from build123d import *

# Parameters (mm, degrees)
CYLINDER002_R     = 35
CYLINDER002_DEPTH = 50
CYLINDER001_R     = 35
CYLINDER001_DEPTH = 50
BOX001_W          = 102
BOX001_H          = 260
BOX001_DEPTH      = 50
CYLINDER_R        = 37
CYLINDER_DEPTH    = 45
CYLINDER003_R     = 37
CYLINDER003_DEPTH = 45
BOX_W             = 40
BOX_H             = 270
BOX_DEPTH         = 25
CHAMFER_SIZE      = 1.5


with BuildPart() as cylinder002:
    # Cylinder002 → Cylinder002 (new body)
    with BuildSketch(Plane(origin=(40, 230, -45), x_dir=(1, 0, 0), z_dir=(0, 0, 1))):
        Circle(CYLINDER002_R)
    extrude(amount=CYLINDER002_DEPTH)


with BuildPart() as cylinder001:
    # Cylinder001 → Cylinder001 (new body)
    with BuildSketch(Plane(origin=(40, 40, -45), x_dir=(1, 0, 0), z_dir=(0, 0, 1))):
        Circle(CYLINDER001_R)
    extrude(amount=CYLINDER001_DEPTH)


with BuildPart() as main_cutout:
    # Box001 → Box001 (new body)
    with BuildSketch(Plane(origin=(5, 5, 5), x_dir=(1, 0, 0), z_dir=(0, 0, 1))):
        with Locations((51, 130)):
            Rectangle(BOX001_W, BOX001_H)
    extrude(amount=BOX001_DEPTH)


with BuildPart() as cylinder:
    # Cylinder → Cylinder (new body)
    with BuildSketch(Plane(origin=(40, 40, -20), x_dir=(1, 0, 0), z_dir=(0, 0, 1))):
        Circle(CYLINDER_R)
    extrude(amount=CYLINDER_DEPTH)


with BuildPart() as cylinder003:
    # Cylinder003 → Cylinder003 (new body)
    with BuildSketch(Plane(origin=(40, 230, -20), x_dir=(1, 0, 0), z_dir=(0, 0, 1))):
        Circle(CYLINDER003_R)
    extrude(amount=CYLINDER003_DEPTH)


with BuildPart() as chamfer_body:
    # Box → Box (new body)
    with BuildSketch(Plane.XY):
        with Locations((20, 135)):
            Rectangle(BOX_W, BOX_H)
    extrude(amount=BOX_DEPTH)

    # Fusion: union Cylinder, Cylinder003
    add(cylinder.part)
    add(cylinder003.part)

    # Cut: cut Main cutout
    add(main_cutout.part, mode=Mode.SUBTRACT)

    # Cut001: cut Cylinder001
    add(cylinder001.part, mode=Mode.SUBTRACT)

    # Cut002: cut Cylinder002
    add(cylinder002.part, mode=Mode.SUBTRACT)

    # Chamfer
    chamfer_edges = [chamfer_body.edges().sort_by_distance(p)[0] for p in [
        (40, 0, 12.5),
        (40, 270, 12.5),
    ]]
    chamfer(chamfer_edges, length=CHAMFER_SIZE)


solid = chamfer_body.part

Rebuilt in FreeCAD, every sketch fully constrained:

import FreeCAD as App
import Part
import Sketcher
from FreeCAD import Vector
Q = App.Units.Quantity


def edges_at(feature, points):
    """Names of the edges that pass closest to the given points."""
    edges = feature.Shape.Edges
    near = lambda p: min(range(len(edges)), key=lambda i: edges[i].distToShape(Part.Vertex(*p))[0])
    return sorted({f"Edge{near(p) + 1}" for p in points})


def add_polygon(sketch, points):
    """Adds a closed chain of lines whose ends are joined by coincident constraints."""
    first, n = sketch.GeometryCount, len(points)
    for a, b in zip(points, points[1:] + points[:1]):
        sketch.addGeometry(Part.LineSegment(App.Vector(*a, 0), App.Vector(*b, 0)), False)
    for i in range(n):
        sketch.addConstraint(Sketcher.Constraint("Coincident", first + i, 2, first + (i + 1) % n, 1))

doc = App.newDocument("Part")
body = doc.addObject("PartDesign::Body", "Body")

sketch1 = body.newObject("Sketcher::SketchObject", "Sketch")
sketch1.AttachmentSupport = (doc.getObject("XY_Plane"), [""])
sketch1.MapMode = "FlatFace"
sketch1.AttachmentOffset = App.Placement(Vector(0, 0, -45), App.Rotation())
sketch1.addGeometry(Part.Circle(Vector(40, 230, 0), Vector(0, 0, 1), 35), False)
sketch1.addConstraint(Sketcher.Constraint("Diameter", 0, Q("70 mm")))
sketch1.addConstraint(Sketcher.Constraint("DistanceX", -1, 1, 0, 3, Q("40 mm")))
sketch1.addConstraint(Sketcher.Constraint("DistanceY", -1, 1, 0, 3, Q("230 mm")))
pad1 = body.newObject("PartDesign::Pad", "Pad")
pad1.Profile = sketch1
pad1.Length = 50
body2 = doc.addObject("PartDesign::Body", "Body001")

sketch2 = body2.newObject("Sketcher::SketchObject", "Sketch001")
sketch2.AttachmentSupport = (doc.getObject("XY_Plane001"), [""])
sketch2.MapMode = "FlatFace"
sketch2.AttachmentOffset = App.Placement(Vector(0, 0, -45), App.Rotation())
sketch2.addGeometry(Part.Circle(Vector(40, 40, 0), Vector(0, 0, 1), 35), False)
sketch2.addConstraint(Sketcher.Constraint("Diameter", 0, Q("70 mm")))
sketch2.addConstraint(Sketcher.Constraint("DistanceX", -1, 1, 0, 3, Q("40 mm")))
sketch2.addConstraint(Sketcher.Constraint("DistanceY", -1, 1, 0, 3, Q("40 mm")))
pad2 = body2.newObject("PartDesign::Pad", "Pad001")
pad2.Profile = sketch2
pad2.Length = 50
body3 = doc.addObject("PartDesign::Body", "Body002")

sketch3 = body3.newObject("Sketcher::SketchObject", "Sketch002")
sketch3.AttachmentSupport = (doc.getObject("XY_Plane002"), [""])
sketch3.MapMode = "FlatFace"
sketch3.AttachmentOffset = App.Placement(Vector(0, 0, 5), App.Rotation())
add_polygon(sketch3, [(5, 265), (5, 5), (107, 5), (107, 265)])
sketch3.addConstraint(Sketcher.Constraint("Vertical", 0))
sketch3.addConstraint(Sketcher.Constraint("Horizontal", 1))
sketch3.addConstraint(Sketcher.Constraint("Vertical", 2))
sketch3.addConstraint(Sketcher.Constraint("Horizontal", 3))
sketch3.addConstraint(Sketcher.Constraint("DistanceX", 1, 1, 1, 2, Q("102 mm")))
sketch3.addConstraint(Sketcher.Constraint("DistanceY", 0, 2, 0, 1, Q("260 mm")))
sketch3.addConstraint(Sketcher.Constraint("DistanceX", -1, 1, 0, 2, Q("5 mm")))
sketch3.addConstraint(Sketcher.Constraint("DistanceY", -1, 1, 0, 2, Q("5 mm")))
pad3 = body3.newObject("PartDesign::Pad", "Pad002")
pad3.Profile = sketch3
pad3.Length = 50
body4 = doc.addObject("PartDesign::Body", "Body003")

sketch4 = body4.newObject("Sketcher::SketchObject", "Sketch003")
sketch4.AttachmentSupport = (doc.getObject("XY_Plane003"), [""])
sketch4.MapMode = "FlatFace"
sketch4.AttachmentOffset = App.Placement(Vector(0, 0, -20), App.Rotation())
sketch4.addGeometry(Part.Circle(Vector(40, 40, 0), Vector(0, 0, 1), 37), False)
sketch4.addConstraint(Sketcher.Constraint("Diameter", 0, Q("74 mm")))
sketch4.addConstraint(Sketcher.Constraint("DistanceX", -1, 1, 0, 3, Q("40 mm")))
sketch4.addConstraint(Sketcher.Constraint("DistanceY", -1, 1, 0, 3, Q("40 mm")))
pad4 = body4.newObject("PartDesign::Pad", "Pad003")
pad4.Profile = sketch4
pad4.Length = 45
body5 = doc.addObject("PartDesign::Body", "Body004")

sketch5 = body5.newObject("Sketcher::SketchObject", "Sketch004")
sketch5.AttachmentSupport = (doc.getObject("XY_Plane004"), [""])
sketch5.MapMode = "FlatFace"
sketch5.AttachmentOffset = App.Placement(Vector(0, 0, -20), App.Rotation())
sketch5.addGeometry(Part.Circle(Vector(40, 230, 0), Vector(0, 0, 1), 37), False)
sketch5.addConstraint(Sketcher.Constraint("Diameter", 0, Q("74 mm")))
sketch5.addConstraint(Sketcher.Constraint("DistanceX", -1, 1, 0, 3, Q("40 mm")))
sketch5.addConstraint(Sketcher.Constraint("DistanceY", -1, 1, 0, 3, Q("230 mm")))
pad5 = body5.newObject("PartDesign::Pad", "Pad004")
pad5.Profile = sketch5
pad5.Length = 45
body6 = doc.addObject("PartDesign::Body", "Body005")

sketch6 = body6.newObject("Sketcher::SketchObject", "Sketch005")
sketch6.AttachmentSupport = (doc.getObject("XY_Plane005"), [""])
sketch6.MapMode = "FlatFace"
add_polygon(sketch6, [(0, 270), (0, 0), (40, 0), (40, 270)])
sketch6.addConstraint(Sketcher.Constraint("Vertical", 0))
sketch6.addConstraint(Sketcher.Constraint("Horizontal", 1))
sketch6.addConstraint(Sketcher.Constraint("Vertical", 2))
sketch6.addConstraint(Sketcher.Constraint("Horizontal", 3))
sketch6.addConstraint(Sketcher.Constraint("Coincident", 0, 2, -1, 1))
sketch6.addConstraint(Sketcher.Constraint("DistanceX", 1, 1, 1, 2, Q("40 mm")))
sketch6.addConstraint(Sketcher.Constraint("DistanceY", 0, 2, 0, 1, Q("270 mm")))
pad6 = body6.newObject("PartDesign::Pad", "Pad005")
pad6.Profile = sketch6
pad6.Length = 25
doc.recompute()

boolean = body6.newObject("PartDesign::Boolean", "Boolean")
boolean.Type = "Fuse"
boolean.addObjects([body4])
doc.recompute()

boolean2 = body6.newObject("PartDesign::Boolean", "Boolean001")
boolean2.Type = "Fuse"
boolean2.addObjects([body5])
doc.recompute()

boolean3 = body6.newObject("PartDesign::Boolean", "Boolean002")
boolean3.Type = "Cut"
boolean3.addObjects([body3])
doc.recompute()

boolean4 = body6.newObject("PartDesign::Boolean", "Boolean003")
boolean4.Type = "Cut"
boolean4.addObjects([body2])
doc.recompute()

boolean5 = body6.newObject("PartDesign::Boolean", "Boolean004")
boolean5.Type = "Cut"
boolean5.addObjects([body])
doc.recompute()

chamfer = body6.newObject("PartDesign::Chamfer", "Chamfer")
chamfer.Base = (boolean5, edges_at(boolean5, [(40, 0, 12.5), (40, 270, 12.5)]))
chamfer.Size = 1.5

doc.recompute()
